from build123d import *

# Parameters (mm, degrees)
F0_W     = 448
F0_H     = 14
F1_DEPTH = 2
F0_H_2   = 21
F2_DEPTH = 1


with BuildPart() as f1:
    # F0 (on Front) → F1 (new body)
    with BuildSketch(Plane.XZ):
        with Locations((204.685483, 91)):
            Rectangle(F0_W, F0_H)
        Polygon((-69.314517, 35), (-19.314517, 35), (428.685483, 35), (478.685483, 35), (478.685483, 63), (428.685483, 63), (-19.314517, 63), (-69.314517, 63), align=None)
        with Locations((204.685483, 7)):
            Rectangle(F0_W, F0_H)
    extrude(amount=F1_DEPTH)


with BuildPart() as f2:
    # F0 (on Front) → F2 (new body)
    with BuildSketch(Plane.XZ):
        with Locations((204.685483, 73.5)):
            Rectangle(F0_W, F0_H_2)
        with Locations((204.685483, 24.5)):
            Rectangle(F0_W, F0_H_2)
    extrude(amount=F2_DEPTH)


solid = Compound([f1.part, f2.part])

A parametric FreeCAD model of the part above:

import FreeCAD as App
import Part
import Sketcher
from FreeCAD import Vector
Q = App.Units.Quantity

doc = App.newDocument("Part")
body = doc.addObject("PartDesign::Body", "Body")
body.AllowCompound = True

# Sketch on XZ plane
sketch1 = body.newObject("Sketcher::SketchObject", "Sketch")
sketch1.AttachmentSupport = (doc.getObject("XZ_Plane"), [""])
sketch1.MapMode = "FlatFace"
sketch1.addGeometry([
    Part.LineSegment(Vector(-19, 98, 0), Vector(-19, 84, 0)),  # 0
    Part.LineSegment(Vector(-19, 84, 0), Vector(429, 84, 0)),  # 1
    Part.LineSegment(Vector(429, 84, 0), Vector(429, 98, 0)),  # 2
    Part.LineSegment(Vector(429, 98, 0), Vector(-19, 98, 0)),  # 3
    Part.LineSegment(Vector(-69, 35, 0), Vector(479, 35, 0)),  # 4
    Part.LineSegment(Vector(479, 35, 0), Vector(479, 63, 0)),  # 5
    Part.LineSegment(Vector(479, 63, 0), Vector(-69, 63, 0)),  # 6
    Part.LineSegment(Vector(-69, 63, 0), Vector(-69, 35, 0)),  # 7
    Part.LineSegment(Vector(-19, 14, 0), Vector(-19, 0, 0)),  # 8
    Part.LineSegment(Vector(-19, 0, 0), Vector(429, 0, 0)),  # 9
    Part.LineSegment(Vector(429, 0, 0), Vector(429, 14, 0)),  # 10
    Part.LineSegment(Vector(429, 14, 0), Vector(-19, 14, 0)),  # 11
], False)
sketch1.addConstraint([
    Sketcher.Constraint("Coincident", 0, 2, 1, 1),
    Sketcher.Constraint("Coincident", 1, 2, 2, 1),
    Sketcher.Constraint("Coincident", 2, 2, 3, 1),
    Sketcher.Constraint("Coincident", 3, 2, 0, 1),
    Sketcher.Constraint("Coincident", 4, 2, 5, 1),
    Sketcher.Constraint("Coincident", 5, 2, 6, 1),
    Sketcher.Constraint("Coincident", 6, 2, 7, 1),
    Sketcher.Constraint("Coincident", 7, 2, 4, 1),
    Sketcher.Constraint("Coincident", 8, 2, 9, 1),
    Sketcher.Constraint("Coincident", 9, 2, 10, 1),
    Sketcher.Constraint("Coincident", 10, 2, 11, 1),
    Sketcher.Constraint("Coincident", 11, 2, 8, 1),
    Sketcher.Constraint("Vertical", 0),
    Sketcher.Constraint("Horizontal", 1),
    Sketcher.Constraint("Vertical", 2),
    Sketcher.Constraint("Horizontal", 3),
    Sketcher.Constraint("Horizontal", 4),
    Sketcher.Constraint("Vertical", 5),
    Sketcher.Constraint("Horizontal", 6),
    Sketcher.Constraint("Vertical", 7),
    Sketcher.Constraint("Vertical", 8),
    Sketcher.Constraint("Horizontal", 9),
    Sketcher.Constraint("Vertical", 10),
    Sketcher.Constraint("Horizontal", 11),
    Sketcher.Constraint("PointOnObject", 8, 2, -1),
    Sketcher.Constraint("Vertical", 3, 2, 8, 2),
    Sketcher.Constraint("Vertical", 2, 2, 9, 2),
    Sketcher.Constraint("Equal", 2, 8),
    Sketcher.Constraint("DistanceX", 1, 1, 1, 2, Q("448 mm")),
    Sketcher.Constraint("DistanceX", 4, 1, 4, 2, Q("548 mm")),
    Sketcher.Constraint("DistanceY", 0, 2, 0, 1, Q("14 mm")),
    Sketcher.Constraint("DistanceY", 5, 1, 5, 2, Q("28 mm")),
    Sketcher.Constraint("DistanceY", -1, 1, 0, 2, Q("84 mm")),
    Sketcher.Constraint("DistanceY", -1, 1, 4, 2, Q("35 mm")),
    Sketcher.Constraint("DistanceX", 1, 2, 4, 2, Q("50 mm")),
    Sketcher.Constraint("DistanceX", 0, 2, -1, 1, Q("19.314517 mm")),
])
pad1 = body.newObject("PartDesign::Pad", "Pad")
pad1.Profile = sketch1
pad1.Length = 2
body2 = doc.addObject("PartDesign::Body", "Body001")
body2.AllowCompound = True

# Sketch on XZ plane
sketch2 = body2.newObject("Sketcher::SketchObject", "Sketch001")
sketch2.AttachmentSupport = (doc.getObject("XZ_Plane001"), [""])
sketch2.MapMode = "FlatFace"
sketch2.addGeometry([
    Part.LineSegment(Vector(-19, 84, 0), Vector(-19, 63, 0)),  # 0
    Part.LineSegment(Vector(-19, 63, 0), Vector(429, 63, 0)),  # 1
    Part.LineSegment(Vector(429, 63, 0), Vector(429, 84, 0)),  # 2
    Part.LineSegment(Vector(429, 84, 0), Vector(-19, 84, 0)),  # 3
    Part.LineSegment(Vector(-19, 35, 0), Vector(-19, 14, 0)),  # 4
    Part.LineSegment(Vector(-19, 14, 0), Vector(429, 14, 0)),  # 5
    Part.LineSegment(Vector(429, 14, 0), Vector(429, 35, 0)),  # 6
    Part.LineSegment(Vector(429, 35, 0), Vector(-19, 35, 0)),  # 7
], False)
sketch2.addConstraint([
    Sketcher.Constraint("Coincident", 0, 2, 1, 1),
    Sketcher.Constraint("Coincident", 1, 2, 2, 1),
    Sketcher.Constraint("Coincident", 2, 2, 3, 1),
    Sketcher.Constraint("Coincident", 3, 2, 0, 1),
    Sketcher.Constraint("Coincident", 4, 2, 5, 1),
    Sketcher.Constraint("Coincident", 5, 2, 6, 1),
    Sketcher.Constraint("Coincident", 6, 2, 7, 1),
    Sketcher.Constraint("Coincident", 7, 2, 4, 1),
    Sketcher.Constraint("Vertical", 0),
    Sketcher.Constraint("Horizontal", 1),
    Sketcher.Constraint("Vertical", 2),
    Sketcher.Constraint("Horizontal", 3),
    Sketcher.Constraint("Vertical", 4),
    Sketcher.Constraint("Horizontal", 5),
    Sketcher.Constraint("Vertical", 6),
    Sketcher.Constraint("Horizontal", 7),
    Sketcher.Constraint("Vertical", 3, 2, 4, 2),
    Sketcher.Constraint("Vertical", 2, 2, 5, 2),
    Sketcher.Constraint("Equal", 2, 4),
    Sketcher.Constraint("DistanceX", 1, 1, 1, 2, Q("448 mm")),
    Sketcher.Constraint("DistanceY", 0, 2, 0, 1, Q("21 mm")),
    Sketcher.Constraint("DistanceY", -1, 1, 0, 2, Q("63 mm")),
    Sketcher.Constraint("DistanceY", -1, 1, 4, 2, Q("14 mm")),
    Sketcher.Constraint("DistanceX", 0, 2, -1, 1, Q("19.314517 mm")),
])
pad2 = body2.newObject("PartDesign::Pad", "Pad001")
pad2.Profile = sketch2
pad2.Length = 1

doc.recompute()
